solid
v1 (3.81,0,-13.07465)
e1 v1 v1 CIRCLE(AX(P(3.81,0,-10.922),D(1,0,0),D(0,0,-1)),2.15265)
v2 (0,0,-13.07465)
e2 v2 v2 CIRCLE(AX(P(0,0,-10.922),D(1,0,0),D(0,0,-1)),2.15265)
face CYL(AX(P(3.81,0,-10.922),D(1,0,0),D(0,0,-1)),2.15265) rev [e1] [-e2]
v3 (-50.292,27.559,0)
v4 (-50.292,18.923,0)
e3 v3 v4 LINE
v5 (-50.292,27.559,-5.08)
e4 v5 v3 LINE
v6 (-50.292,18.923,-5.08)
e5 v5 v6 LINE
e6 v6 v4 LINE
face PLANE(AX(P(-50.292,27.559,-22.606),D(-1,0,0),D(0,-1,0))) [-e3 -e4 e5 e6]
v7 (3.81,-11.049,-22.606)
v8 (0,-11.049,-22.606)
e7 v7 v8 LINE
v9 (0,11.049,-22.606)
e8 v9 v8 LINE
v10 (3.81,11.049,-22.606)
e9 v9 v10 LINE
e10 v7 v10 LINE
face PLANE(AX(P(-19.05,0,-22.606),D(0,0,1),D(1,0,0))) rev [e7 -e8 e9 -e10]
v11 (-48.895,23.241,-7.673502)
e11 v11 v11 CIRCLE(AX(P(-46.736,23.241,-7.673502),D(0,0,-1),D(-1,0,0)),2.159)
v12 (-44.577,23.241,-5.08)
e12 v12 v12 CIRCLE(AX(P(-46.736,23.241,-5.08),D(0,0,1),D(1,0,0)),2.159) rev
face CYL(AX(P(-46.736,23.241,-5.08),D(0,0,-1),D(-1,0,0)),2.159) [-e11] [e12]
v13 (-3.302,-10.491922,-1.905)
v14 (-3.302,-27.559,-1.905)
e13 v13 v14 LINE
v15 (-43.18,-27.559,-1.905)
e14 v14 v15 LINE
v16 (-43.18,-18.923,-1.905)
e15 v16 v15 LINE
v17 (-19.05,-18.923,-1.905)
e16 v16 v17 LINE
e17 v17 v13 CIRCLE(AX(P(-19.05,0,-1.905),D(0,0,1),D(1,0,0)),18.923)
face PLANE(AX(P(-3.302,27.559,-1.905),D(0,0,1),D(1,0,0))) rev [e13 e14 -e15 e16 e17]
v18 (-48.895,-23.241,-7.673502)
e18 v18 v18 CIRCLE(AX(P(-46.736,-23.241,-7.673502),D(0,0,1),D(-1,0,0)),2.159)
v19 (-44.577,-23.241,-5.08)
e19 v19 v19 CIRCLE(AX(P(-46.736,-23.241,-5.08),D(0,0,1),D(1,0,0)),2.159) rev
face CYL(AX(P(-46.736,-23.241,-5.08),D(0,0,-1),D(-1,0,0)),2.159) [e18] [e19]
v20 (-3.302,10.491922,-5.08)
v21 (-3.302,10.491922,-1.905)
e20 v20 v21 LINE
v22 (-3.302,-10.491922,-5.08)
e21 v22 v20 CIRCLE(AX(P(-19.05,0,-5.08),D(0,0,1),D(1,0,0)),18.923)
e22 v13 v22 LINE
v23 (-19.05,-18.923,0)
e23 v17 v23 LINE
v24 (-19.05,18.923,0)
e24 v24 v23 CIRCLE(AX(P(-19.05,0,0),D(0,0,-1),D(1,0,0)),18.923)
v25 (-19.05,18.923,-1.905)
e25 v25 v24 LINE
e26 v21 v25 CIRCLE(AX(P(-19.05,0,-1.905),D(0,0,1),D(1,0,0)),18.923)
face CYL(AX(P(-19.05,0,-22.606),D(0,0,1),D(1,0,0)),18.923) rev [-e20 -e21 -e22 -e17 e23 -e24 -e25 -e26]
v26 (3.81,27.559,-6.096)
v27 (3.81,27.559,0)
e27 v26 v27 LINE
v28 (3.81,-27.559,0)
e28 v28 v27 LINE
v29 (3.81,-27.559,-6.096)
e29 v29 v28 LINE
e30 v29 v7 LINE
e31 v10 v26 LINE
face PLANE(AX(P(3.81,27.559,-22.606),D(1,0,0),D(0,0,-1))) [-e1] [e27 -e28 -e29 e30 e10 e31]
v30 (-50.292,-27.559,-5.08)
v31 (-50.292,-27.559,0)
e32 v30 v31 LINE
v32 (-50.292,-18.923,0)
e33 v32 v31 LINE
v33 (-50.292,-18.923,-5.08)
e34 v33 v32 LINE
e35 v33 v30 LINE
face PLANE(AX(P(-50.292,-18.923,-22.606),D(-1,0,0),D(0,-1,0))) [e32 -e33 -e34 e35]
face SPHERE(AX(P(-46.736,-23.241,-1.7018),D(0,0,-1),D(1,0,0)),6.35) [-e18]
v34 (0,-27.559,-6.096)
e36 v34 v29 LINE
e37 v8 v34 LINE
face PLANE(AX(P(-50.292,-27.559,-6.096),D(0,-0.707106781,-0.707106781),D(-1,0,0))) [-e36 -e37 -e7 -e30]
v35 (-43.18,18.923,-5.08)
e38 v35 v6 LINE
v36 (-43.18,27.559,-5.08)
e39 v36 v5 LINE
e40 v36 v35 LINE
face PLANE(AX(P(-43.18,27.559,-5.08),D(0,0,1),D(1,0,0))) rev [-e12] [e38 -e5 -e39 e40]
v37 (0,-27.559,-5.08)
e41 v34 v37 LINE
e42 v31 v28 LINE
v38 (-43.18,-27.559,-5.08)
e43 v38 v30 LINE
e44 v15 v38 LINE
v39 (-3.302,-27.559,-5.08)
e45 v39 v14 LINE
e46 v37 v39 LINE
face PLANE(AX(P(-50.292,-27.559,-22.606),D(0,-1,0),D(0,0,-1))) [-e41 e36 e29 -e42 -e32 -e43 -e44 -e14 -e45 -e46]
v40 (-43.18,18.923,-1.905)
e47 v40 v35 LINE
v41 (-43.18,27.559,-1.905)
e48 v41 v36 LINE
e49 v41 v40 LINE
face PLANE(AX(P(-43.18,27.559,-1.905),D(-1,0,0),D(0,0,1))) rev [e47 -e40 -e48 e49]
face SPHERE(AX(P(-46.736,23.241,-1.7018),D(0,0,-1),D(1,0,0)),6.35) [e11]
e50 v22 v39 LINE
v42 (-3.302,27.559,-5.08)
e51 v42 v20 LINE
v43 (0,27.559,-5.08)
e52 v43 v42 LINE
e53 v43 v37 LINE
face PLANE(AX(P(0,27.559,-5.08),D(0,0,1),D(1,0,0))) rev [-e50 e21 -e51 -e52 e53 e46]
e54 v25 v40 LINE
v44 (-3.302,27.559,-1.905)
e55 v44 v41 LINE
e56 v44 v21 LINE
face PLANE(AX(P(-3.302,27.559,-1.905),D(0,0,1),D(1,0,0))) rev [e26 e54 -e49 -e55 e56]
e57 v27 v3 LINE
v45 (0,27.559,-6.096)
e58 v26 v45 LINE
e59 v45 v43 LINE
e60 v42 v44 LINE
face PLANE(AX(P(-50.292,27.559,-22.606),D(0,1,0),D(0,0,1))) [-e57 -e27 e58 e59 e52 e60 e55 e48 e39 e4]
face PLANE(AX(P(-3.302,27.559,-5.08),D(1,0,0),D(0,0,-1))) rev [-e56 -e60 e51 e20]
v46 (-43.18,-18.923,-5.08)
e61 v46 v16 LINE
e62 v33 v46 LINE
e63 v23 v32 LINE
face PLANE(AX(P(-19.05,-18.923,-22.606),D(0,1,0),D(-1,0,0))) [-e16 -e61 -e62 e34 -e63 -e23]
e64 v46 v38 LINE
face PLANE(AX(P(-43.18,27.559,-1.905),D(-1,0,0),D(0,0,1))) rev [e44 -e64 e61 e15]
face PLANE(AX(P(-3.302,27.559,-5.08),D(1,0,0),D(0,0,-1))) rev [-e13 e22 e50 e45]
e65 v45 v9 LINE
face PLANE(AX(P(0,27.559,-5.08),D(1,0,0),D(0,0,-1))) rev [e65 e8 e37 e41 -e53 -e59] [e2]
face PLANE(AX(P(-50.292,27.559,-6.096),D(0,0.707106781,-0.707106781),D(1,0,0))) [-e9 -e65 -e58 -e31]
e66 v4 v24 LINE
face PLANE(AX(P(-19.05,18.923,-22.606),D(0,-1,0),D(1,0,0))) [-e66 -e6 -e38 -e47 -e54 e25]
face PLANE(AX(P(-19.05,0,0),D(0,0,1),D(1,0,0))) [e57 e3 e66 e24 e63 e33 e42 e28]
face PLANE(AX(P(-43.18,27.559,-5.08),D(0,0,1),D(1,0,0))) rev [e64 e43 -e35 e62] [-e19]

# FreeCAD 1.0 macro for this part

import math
import FreeCAD as App
import Part
import Sketcher

V = App.Vector
Q = App.Units.Quantity


def edges_at(feature, points):
    """Names of the edges that pass closest to the given points."""
    edges = feature.Shape.Edges
    near = lambda p: min(range(len(edges)), key=lambda i: edges[i].distToShape(Part.Vertex(*p))[0])
    return sorted({f"Edge{near(p) + 1}" for p in points})

doc = App.newDocument("Part")
body = doc.addObject("PartDesign::Body", "Body")

sketch1 = body.newObject("Sketcher::SketchObject", "Sketch")
sketch1.AttachmentSupport = (doc.getObject("XY_Plane"), [""])
sketch1.MapMode = "FlatFace"
sketch1.addGeometry([
    Part.LineSegment(V(-50.292, 18.923, 0), V(-19.05, 18.923, 0)),
    Part.ArcOfCircle(Part.Circle(V(-19.05, 0, 0), V(0, 0, 1), 18.923), math.radians(-90), math.radians(90)),
    Part.LineSegment(V(-19.05, -18.923, 0), V(-50.292, -18.923, 0)),
    Part.LineSegment(V(-50.292, -18.923, 0), V(-50.292, -27.559, 0)),
    Part.LineSegment(V(-50.292, -27.559, 0), V(3.81, -27.559, 0)),
    Part.LineSegment(V(3.81, -27.559, 0), V(3.81, 27.559, 0)),
    Part.LineSegment(V(3.81, 27.559, 0), V(-50.292, 27.559, 0)),
    Part.LineSegment(V(-50.292, 27.559, 0), V(-50.292, 18.923, 0)),
], False)
sketch1.addConstraint([
    Sketcher.Constraint("Tangent", 0, 2, 1, 2),
    Sketcher.Constraint("Tangent", 1, 1, 2, 1),
    Sketcher.Constraint("Coincident", 2, 2, 3, 1),
    Sketcher.Constraint("Coincident", 3, 2, 4, 1),
    Sketcher.Constraint("Coincident", 4, 2, 5, 1),
    Sketcher.Constraint("Coincident", 5, 2, 6, 1),
    Sketcher.Constraint("Coincident", 6, 2, 7, 1),
    Sketcher.Constraint("Coincident", 7, 2, 0, 1),
    Sketcher.Constraint("Horizontal", 0),
    Sketcher.Constraint("Horizontal", 2),
    Sketcher.Constraint("Vertical", 3),
    Sketcher.Constraint("Horizontal", 4),
    Sketcher.Constraint("Vertical", 5),
    Sketcher.Constraint("Horizontal", 6),
    Sketcher.Constraint("Vertical", 7),
    Sketcher.Constraint("Symmetric", 3, 2, 6, 2, -1),
    Sketcher.Constraint("PointOnObject", 1, 3, -1),
    Sketcher.Constraint("Radius", 1, Q("0.745 in")),
    Sketcher.Constraint("DistanceX", 0, 1, 0, 2, Q("1.23 in")),
    Sketcher.Constraint("DistanceX", 4, 1, 4, 2, Q("2.13 in")),
    Sketcher.Constraint("DistanceY", 3, 2, 3, 1, Q("0.34 in")),
    Sketcher.Constraint("DistanceX", 1, 3, -1, 1, Q("0.75 in")),
])
pad1 = body.newObject("PartDesign::Pad", "Pad")
pad1.Profile = sketch1
pad1.Length = Q("0.89 in")
pad1.Reversed = True

sketch2 = body.newObject("Sketcher::SketchObject", "Sketch001")
sketch2.AttachmentSupport = (doc.getObject("XZ_Plane"), [""])
sketch2.MapMode = "FlatFace"
sketch2.AttachmentOffset = App.Placement(V(0, 0, 1.085 * 25.4), App.Rotation())
sketch2.addGeometry([
    Part.LineSegment(V(-3.302, -5.08, 0), V(-3.302, -1.905, 0)),
    Part.LineSegment(V(-3.302, -1.905, 0), V(-43.18, -1.905, 0)),
    Part.LineSegment(V(-43.18, -1.905, 0), V(-43.18, -5.08, 0)),
    Part.LineSegment(V(-43.18, -5.08, 0), V(-50.292, -5.08, 0)),
    Part.LineSegment(V(-50.292, -5.08, 0), V(-50.292, -22.606, 0)),
    Part.LineSegment(V(-50.292, -22.606, 0), V(0, -22.606, 0)),
    Part.LineSegment(V(0, -22.606, 0), V(0, -5.08, 0)),
    Part.LineSegment(V(0, -5.08, 0), V(-3.302, -5.08, 0)),
], False)
sketch2.addConstraint([
    Sketcher.Constraint("Coincident", 0, 2, 1, 1),
    Sketcher.Constraint("Coincident", 1, 2, 2, 1),
    Sketcher.Constraint("Coincident", 2, 2, 3, 1),
    Sketcher.Constraint("Coincident", 3, 2, 4, 1),
    Sketcher.Constraint("Coincident", 4, 2, 5, 1),
    Sketcher.Constraint("Coincident", 5, 2, 6, 1),
    Sketcher.Constraint("Coincident", 6, 2, 7, 1),
    Sketcher.Constraint("Coincident", 7, 2, 0, 1),
    Sketcher.Constraint("Vertical", 0),
    Sketcher.Constraint("Horizontal", 1),
    Sketcher.Constraint("Vertical", 2),
    Sketcher.Constraint("Horizontal", 3),
    Sketcher.Constraint("Vertical", 4),
    Sketcher.Constraint("Horizontal", 5),
    Sketcher.Constraint("Vertical", 6),
    Sketcher.Constraint("Horizontal", 7),
    Sketcher.Constraint("PointOnObject", 5, 2, -2),
    Sketcher.Constraint("Horizontal", 3, 2, 6, 2),
    Sketcher.Constraint("DistanceX", 1, 2, 1, 1, Q("1.57 in")),
    Sketcher.Constraint("DistanceX", 3, 2, 3, 1, Q("0.28 in")),
    Sketcher.Constraint("DistanceX", 5, 1, 5, 2, Q("1.98 in")),
    Sketcher.Constraint("DistanceY", 4, 2, 4, 1, Q("0.69 in")),
    Sketcher.Constraint("DistanceY", 2, 2, -1, 1, Q("0.2 in")),
    Sketcher.Constraint("DistanceY", 0, 1, 0, 2, Q("0.125 in")),
])
pocket1 = body.newObject("PartDesign::Pocket", "Pocket")
pocket1.Profile = sketch2
pocket1.Type = "ThroughAll"

sketch3 = body.newObject("Sketcher::SketchObject", "Sketch002")
sketch3.AttachmentSupport = (doc.getObject("YZ_Plane"), [""])
sketch3.MapMode = "FlatFace"
sketch3.AttachmentOffset = App.Placement(V(0, 0, 0.15 * 25.4), App.Rotation())
sketch3.addGeometry(Part.Circle(V(0, -10.922, 0), V(0, 0, 1), 2.15265), False)
sketch3.addConstraint([
    Sketcher.Constraint("PointOnObject", 0, 3, -2),
    Sketcher.Constraint("Diameter", 0, Q("0.1695 in")),
    Sketcher.Constraint("DistanceY", 0, 3, -1, 1, Q("0.43 in")),
])
doc.recompute()
hole = body.newObject("PartDesign::Hole", "Hole")
hole.Profile = sketch3
hole.ThreadType = "None"
hole.Diameter = Q("0.1695 in")
hole.DepthType = "Dimension"
hole.Depth = Q("0.15 in")
hole.DrillPoint = "Flat"

sketch4 = body.newObject("Sketcher::SketchObject", "Sketch003")
sketch4.AttachmentSupport = (doc.getObject("XZ_Plane"), [""])
sketch4.MapMode = "FlatFace"
sketch4.AttachmentOffset = App.Placement(V(0, 0, -0.915 * 25.4), App.Rotation())
sketch4.addGeometry([
    Part.LineSegment(V(-46.736, -8.0518, 0), V(-46.736, -5.08, 0)),
    Part.LineSegment(V(-46.736, -5.08, 0), V(-44.577, -5.08, 0)),
    Part.LineSegment(V(-44.577, -5.08, 0), V(-44.577, -7.673502, 0)),
    Part.ArcOfCircle(Part.Circle(V(-46.736, -1.7018, 0), V(0, 0, 1), 6.35), math.radians(-90), math.radians(-70.123126)),
], False)
sketch4.addGeometry(Part.LineSegment(V(-46.736, -8.0518, 0), V(-46.736, -1.7018, 0)), True)
sketch4.addConstraint([
    Sketcher.Constraint("Coincident", 0, 2, 1, 1),
    Sketcher.Constraint("Coincident", 1, 2, 2, 1),
    Sketcher.Constraint("Coincident", 2, 2, 3, 2),
    Sketcher.Constraint("Coincident", 3, 1, 0, 1),
    Sketcher.Constraint("Vertical", 0),
    Sketcher.Constraint("Horizontal", 1),
    Sketcher.Constraint("Vertical", 2),
    Sketcher.Constraint("Vertical", 4),
    Sketcher.Constraint("Coincident", 4, 1, 3, 1),
    Sketcher.Constraint("Coincident", 4, 2, 3, 3),
    Sketcher.Constraint("Radius", 3, Q("0.25 in")),
    Sketcher.Constraint("DistanceY", 0, 2, -1, 1, Q("0.2 in")),
    Sketcher.Constraint("DistanceX", 1, 1, 1, 2, Q("0.085 in")),
    Sketcher.Constraint("DistanceY", 0, 1, 0, 2, Q("0.117 in")),
    Sketcher.Constraint("DistanceX", 3, 3, -1, 1, Q("1.84 in")),
])
revolution = body.newObject("PartDesign::Revolution", "Revolution")
revolution.Profile = sketch4
revolution.ReferenceAxis = (sketch4, ["Axis0"])
revolution.Angle = 360
doc.recompute()

mirrored = body.newObject("PartDesign::Mirrored", "Mirrored")
mirrored.Originals = [revolution]
mirrored.MirrorPlane = (doc.getObject("XZ_Plane"), [""])
body.Tip = mirrored
doc.recompute()

chamfer = body.newObject("PartDesign::Chamfer", "Chamfer")
chamfer.Base = (mirrored, edges_at(mirrored, [(1.905, -27.559, -22.606), (1.905, 27.559, -22.606)]))
chamfer.Size = Q("0.65 in")

doc.recompute()
